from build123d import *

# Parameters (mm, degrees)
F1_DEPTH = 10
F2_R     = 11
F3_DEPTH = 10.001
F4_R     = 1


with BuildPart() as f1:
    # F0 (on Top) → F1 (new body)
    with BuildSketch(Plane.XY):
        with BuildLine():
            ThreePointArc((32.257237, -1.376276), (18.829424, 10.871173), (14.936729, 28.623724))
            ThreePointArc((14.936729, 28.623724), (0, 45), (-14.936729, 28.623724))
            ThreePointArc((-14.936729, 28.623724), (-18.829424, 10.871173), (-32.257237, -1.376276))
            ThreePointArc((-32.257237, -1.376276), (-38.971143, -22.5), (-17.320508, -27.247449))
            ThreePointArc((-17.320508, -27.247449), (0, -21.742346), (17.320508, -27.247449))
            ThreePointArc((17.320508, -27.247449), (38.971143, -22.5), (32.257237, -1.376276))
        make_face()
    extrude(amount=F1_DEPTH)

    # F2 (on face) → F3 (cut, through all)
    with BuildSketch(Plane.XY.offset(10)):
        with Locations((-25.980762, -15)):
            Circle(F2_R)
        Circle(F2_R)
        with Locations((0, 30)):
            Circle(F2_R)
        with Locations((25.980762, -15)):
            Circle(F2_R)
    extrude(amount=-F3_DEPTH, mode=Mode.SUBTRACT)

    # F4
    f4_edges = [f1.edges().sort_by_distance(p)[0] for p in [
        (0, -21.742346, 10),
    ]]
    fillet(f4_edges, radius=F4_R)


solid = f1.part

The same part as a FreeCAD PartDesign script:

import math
import FreeCAD as App
import Part
import Sketcher

V = App.Vector
Q = App.Units.Quantity


def edges_at(feature, points):
    """Names of the edges that pass closest to the given points."""
    edges = feature.Shape.Edges
    near = lambda p: min(range(len(edges)), key=lambda i: edges[i].distToShape(Part.Vertex(*p))[0])
    return sorted({f"Edge{near(p) + 1}" for p in points})

doc = App.newDocument("Part")
params = doc.addObject("Spreadsheet::Sheet", "Params")
for row, (alias, value) in enumerate([
    ("sketch1_radius", "29.999999 mm"),
    ("sketch1_radius2", "15 mm"),
    ("pad1_length", "10 mm"),
    ("sketch2_diameter", "22 mm"),
    ("fillet_radius", "1 mm"),
], start=1):
    params.set(f"A{row}", alias)
    params.set(f"B{row}", "=" + value)
    params.setAlias(f"B{row}", alias)

body = doc.addObject("PartDesign::Body", "Body")

sketch1 = body.newObject("Sketcher::SketchObject", "Sketch")
sketch1.AttachmentSupport = (doc.getObject("XY_Plane"), [""])
sketch1.MapMode = "FlatFace"
sketch1.addGeometry(Part.ArcOfCircle(Part.Circle(V(45, 26, 0), V(0, 0, 1), 30), math.radians(175), math.radians(245)), False)
sketch1.addGeometry(Part.ArcOfCircle(Part.Circle(V(0, 30, 0), V(0, 0, 1), 15), math.radians(-5), math.radians(185)), False)
sketch1.addGeometry(Part.ArcOfCircle(Part.Circle(V(-45, 26, 0), V(0, 0, 1), 30), math.radians(-65), math.radians(5)), False)
sketch1.addGeometry(Part.ArcOfCircle(Part.Circle(V(-26, -15, 0), V(0, 0, 1), 15), math.radians(115), math.radians(305)), False)
sketch1.addGeometry(Part.ArcOfCircle(Part.Circle(V(0, -52, 0), V(0, 0, 1), 30), math.radians(55), math.radians(125)), False)
sketch1.addGeometry(Part.ArcOfCircle(Part.Circle(V(26, -15, 0), V(0, 0, 1), 15), math.radians(-125), math.radians(65)), False)
sketch1.addConstraint(Sketcher.Constraint("Tangent", 0, 1, 1, 1))
sketch1.addConstraint(Sketcher.Constraint("Tangent", 1, 2, 2, 2))
sketch1.addConstraint(Sketcher.Constraint("Tangent", 2, 1, 3, 1))
sketch1.addConstraint(Sketcher.Constraint("Tangent", 3, 2, 4, 2))
sketch1.addConstraint(Sketcher.Constraint("Tangent", 4, 1, 5, 1))
sketch1.addConstraint(Sketcher.Constraint("Tangent", 5, 2, 0, 2))
sketch1.addConstraint(Sketcher.Constraint("Equal", 0, 2))
sketch1.addConstraint(Sketcher.Constraint("Equal", 1, 3))
sketch1.addConstraint(Sketcher.Constraint("Equal", 2, 4))
sketch1.addConstraint(Sketcher.Constraint("Equal", 3, 5))
sketch1.addConstraint(Sketcher.Constraint("Symmetric", 0, 3, 2, 3, -2))
sketch1.addConstraint(Sketcher.Constraint("PointOnObject", 4, 3, -2))
sketch1.addConstraint(Sketcher.Constraint("Radius", 0, Q("29.999999 mm")))
sketch1.addConstraint(Sketcher.Constraint("Radius", 1, Q("15 mm")))
sketch1.addConstraint(Sketcher.Constraint("DistanceY", -1, 1, 1, 3, Q("30 mm")))
sketch1.addConstraint(Sketcher.Constraint("DistanceY", 3, 3, -1, 1, Q("15 mm")))
sketch1.addConstraint(Sketcher.Constraint("DistanceX", 3, 3, -1, 1, Q("25.980762 mm")))
sketch1.setExpression("Constraints[12]", "Params.sketch1_radius")
sketch1.setExpression("Constraints[13]", "Params.sketch1_radius2")
pad1 = body.newObject("PartDesign::Pad", "Pad")
pad1.Profile = sketch1
pad1.setExpression("Length", "Params.pad1_length")

sketch2 = body.newObject("Sketcher::SketchObject", "Sketch001")
sketch2.AttachmentSupport = (doc.getObject("XY_Plane"), [""])
sketch2.MapMode = "FlatFace"
sketch2.AttachmentOffset = App.Placement(V(0, 0, 10), App.Rotation())
sketch2.addGeometry(Part.Circle(V(-26, -15, 0), V(0, 0, 1), 11), False)
sketch2.addGeometry(Part.Circle(V(0, 0, 0), V(0, 0, 1), 11), False)
sketch2.addGeometry(Part.Circle(V(0, 30, 0), V(0, 0, 1), 11), False)
sketch2.addGeometry(Part.Circle(V(26, -15, 0), V(0, 0, 1), 11), False)
sketch2.addConstraint(Sketcher.Constraint("Coincident", 1, 3, -1, 1))
sketch2.addConstraint(Sketcher.Constraint("Equal", 0, 1))
sketch2.addConstraint(Sketcher.Constraint("Equal", 1, 2))
sketch2.addConstraint(Sketcher.Constraint("Equal", 2, 3))
sketch2.addConstraint(Sketcher.Constraint("Symmetric", 0, 3, 3, 3, -2))
sketch2.addConstraint(Sketcher.Constraint("PointOnObject", 2, 3, -2))
sketch2.addConstraint(Sketcher.Constraint("Diameter", 0, Q("22 mm")))
sketch2.addConstraint(Sketcher.Constraint("DistanceY", 0, 3, -1, 1, Q("15 mm")))
sketch2.addConstraint(Sketcher.Constraint("DistanceY", -1, 1, 2, 3, Q("30 mm")))
sketch2.addConstraint(Sketcher.Constraint("DistanceX", 0, 3, -1, 1, Q("25.980762 mm")))
sketch2.setExpression("Constraints[6]", "Params.sketch2_diameter")
pocket1 = body.newObject("PartDesign::Pocket", "Pocket")
pocket1.Profile = sketch2
pocket1.Type = "ThroughAll"
doc.recompute()

fillet = body.newObject("PartDesign::Fillet", "Fillet")
fillet.Base = (pocket1, edges_at(pocket1, [(0, -21.742, 10)]))
fillet.setExpression("Radius", "Params.fillet_radius")

doc.recompute()
